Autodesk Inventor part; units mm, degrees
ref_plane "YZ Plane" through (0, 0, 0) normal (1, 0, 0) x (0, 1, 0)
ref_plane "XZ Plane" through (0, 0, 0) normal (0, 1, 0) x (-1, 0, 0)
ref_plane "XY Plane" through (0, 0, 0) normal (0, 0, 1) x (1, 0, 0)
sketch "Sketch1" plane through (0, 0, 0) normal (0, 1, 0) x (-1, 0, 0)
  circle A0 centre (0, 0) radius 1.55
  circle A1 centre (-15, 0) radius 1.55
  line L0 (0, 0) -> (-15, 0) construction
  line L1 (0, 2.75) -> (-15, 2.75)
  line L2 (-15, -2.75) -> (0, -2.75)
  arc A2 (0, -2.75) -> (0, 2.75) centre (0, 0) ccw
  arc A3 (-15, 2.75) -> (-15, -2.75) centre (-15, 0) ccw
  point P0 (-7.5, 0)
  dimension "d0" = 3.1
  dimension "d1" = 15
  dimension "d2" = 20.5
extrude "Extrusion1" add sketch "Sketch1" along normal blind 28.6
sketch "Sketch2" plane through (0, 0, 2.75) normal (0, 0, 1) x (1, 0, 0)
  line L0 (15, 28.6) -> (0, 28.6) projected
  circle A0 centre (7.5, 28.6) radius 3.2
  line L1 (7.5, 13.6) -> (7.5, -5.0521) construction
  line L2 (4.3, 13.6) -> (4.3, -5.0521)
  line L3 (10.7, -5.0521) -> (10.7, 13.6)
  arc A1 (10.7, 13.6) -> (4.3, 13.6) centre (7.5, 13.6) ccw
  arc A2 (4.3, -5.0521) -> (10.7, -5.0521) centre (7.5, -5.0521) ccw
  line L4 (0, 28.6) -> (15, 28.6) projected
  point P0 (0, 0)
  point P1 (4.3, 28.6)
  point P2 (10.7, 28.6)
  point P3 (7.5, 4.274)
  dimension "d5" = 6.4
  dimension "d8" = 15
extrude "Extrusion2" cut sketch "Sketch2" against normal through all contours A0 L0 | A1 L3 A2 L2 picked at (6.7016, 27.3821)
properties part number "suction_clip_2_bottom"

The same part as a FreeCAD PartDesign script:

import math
import FreeCAD as App
import Part
import Sketcher
from FreeCAD import Vector
Q = App.Units.Quantity

doc = App.newDocument("Part")
body = doc.addObject("PartDesign::Body", "Body")

# Sketch on XZ plane
sketch1 = doc.addObject("Sketcher::SketchObject", "Sketch")
body.addObject(sketch1)
sketch1.AttachmentSupport = (doc.XZ_Plane, [""])
sketch1.MapMode = "FlatFace"
sketch1.addGeometry([
    Part.ArcOfCircle(Part.Circle(Vector(0, 0, 0), Vector(0, 0, 1), 2.8), math.radians(90), math.radians(270)),  # 0
    Part.LineSegment(Vector(0, 2.8, 0), Vector(15, 2.8, 0)),  # 1
    Part.ArcOfCircle(Part.Circle(Vector(15, 0, 0), Vector(0, 0, 1), 2.8), math.radians(-90), math.radians(90)),  # 2
    Part.LineSegment(Vector(15, -2.8, 0), Vector(0, -2.8, 0)),  # 3
    Part.Circle(Vector(15, 0, 0), Vector(0, 0, 1), 1.6),  # 4
    Part.Circle(Vector(0, 0, 0), Vector(0, 0, 1), 1.6),  # 5
], False)
sketch1.addConstraint([
    Sketcher.Constraint("Tangent", 0, 1, 1, 1),
    Sketcher.Constraint("Tangent", 1, 2, 2, 2),
    Sketcher.Constraint("Tangent", 2, 1, 3, 1),
    Sketcher.Constraint("Tangent", 3, 2, 0, 2),
    Sketcher.Constraint("Horizontal", 1),
    Sketcher.Constraint("Horizontal", 3),
    Sketcher.Constraint("Coincident", 0, 3, -1, 1),
    Sketcher.Constraint("Coincident", 5, 3, -1, 1),
    Sketcher.Constraint("Coincident", 4, 3, 2, 3),
    Sketcher.Constraint("Equal", 4, 5),
    Sketcher.Constraint("Diameter", 4, Q("3.1 mm")),
    Sketcher.Constraint("DistanceX", 1, 1, 1, 2, Q("15 mm")),
    Sketcher.Constraint("Radius", 0, Q("2.75 mm")),
])
pad1 = doc.addObject("PartDesign::Pad", "Pad")
body.addObject(pad1)
pad1.Profile = sketch1
pad1.Length = 28.6
pad1.Reversed = True

# Sketch on XY plane
sketch2 = doc.addObject("Sketcher::SketchObject", "Sketch001")
body.addObject(sketch2)
sketch2.AttachmentSupport = (doc.XY_Plane, [""])
sketch2.MapMode = "FlatFace"
sketch2.AttachmentOffset = App.Placement(Vector(0, 0, 2.75), App.Rotation())
sketch2.addGeometry([
    Part.ArcOfCircle(Part.Circle(Vector(7.5, 28.6, 0), Vector(0, 0, 1), 3.2), math.radians(180), math.radians(360)),  # 0
    Part.LineSegment(Vector(10.7, 28.6, 0), Vector(4.3, 28.6, 0)),  # 1
    Part.ArcOfCircle(Part.Circle(Vector(7.5, 13.6, 0), Vector(0, 0, 1), 3.2), math.radians(0), math.radians(180)),  # 2
    Part.LineSegment(Vector(4.3, 13.6, 0), Vector(4.3, -5.1, 0)),  # 3
    Part.ArcOfCircle(Part.Circle(Vector(7.5, -5.1, 0), Vector(0, 0, 1), 3.2), math.radians(180), math.radians(360)),  # 4
    Part.LineSegment(Vector(10.7, -5.1, 0), Vector(10.7, 13.6, 0)),  # 5
], False)
sketch2.addConstraint([
    Sketcher.Constraint("Coincident", 0, 1, 1, 2),
    Sketcher.Constraint("Coincident", 1, 1, 0, 2),
    Sketcher.Constraint("Tangent", 2, 2, 3, 1),
    Sketcher.Constraint("Tangent", 3, 2, 4, 1),
    Sketcher.Constraint("Tangent", 4, 2, 5, 1),
    Sketcher.Constraint("Tangent", 5, 2, 2, 1),
    Sketcher.Constraint("Horizontal", 1),
    Sketcher.Constraint("Vertical", 3),
    Sketcher.Constraint("Vertical", 5),
    Sketcher.Constraint("Equal", 0, 2),
    Sketcher.Constraint("Vertical", 0, 3, 2, 3),
    Sketcher.Constraint("Radius", 0, Q("3.2 mm")),
    Sketcher.Constraint("DistanceY", 2, 3, 0, 3, Q("15 mm")),
    Sketcher.Constraint("DistanceY", 2, 3, 0, 1, Q("15 mm")),
    Sketcher.Constraint("DistanceX", -1, 1, 0, 3, Q("7.5 mm")),
    Sketcher.Constraint("DistanceY", -1, 1, 0, 3, Q("28.6 mm")),
    Sketcher.Constraint("DistanceY", 3, 2, 3, 1, Q("18.652 mm")),
])
pocket1 = doc.addObject("PartDesign::Pocket", "Pocket")
body.addObject(pocket1)
pocket1.Profile = sketch2
pocket1.Type = "ThroughAll"

doc.recompute()
